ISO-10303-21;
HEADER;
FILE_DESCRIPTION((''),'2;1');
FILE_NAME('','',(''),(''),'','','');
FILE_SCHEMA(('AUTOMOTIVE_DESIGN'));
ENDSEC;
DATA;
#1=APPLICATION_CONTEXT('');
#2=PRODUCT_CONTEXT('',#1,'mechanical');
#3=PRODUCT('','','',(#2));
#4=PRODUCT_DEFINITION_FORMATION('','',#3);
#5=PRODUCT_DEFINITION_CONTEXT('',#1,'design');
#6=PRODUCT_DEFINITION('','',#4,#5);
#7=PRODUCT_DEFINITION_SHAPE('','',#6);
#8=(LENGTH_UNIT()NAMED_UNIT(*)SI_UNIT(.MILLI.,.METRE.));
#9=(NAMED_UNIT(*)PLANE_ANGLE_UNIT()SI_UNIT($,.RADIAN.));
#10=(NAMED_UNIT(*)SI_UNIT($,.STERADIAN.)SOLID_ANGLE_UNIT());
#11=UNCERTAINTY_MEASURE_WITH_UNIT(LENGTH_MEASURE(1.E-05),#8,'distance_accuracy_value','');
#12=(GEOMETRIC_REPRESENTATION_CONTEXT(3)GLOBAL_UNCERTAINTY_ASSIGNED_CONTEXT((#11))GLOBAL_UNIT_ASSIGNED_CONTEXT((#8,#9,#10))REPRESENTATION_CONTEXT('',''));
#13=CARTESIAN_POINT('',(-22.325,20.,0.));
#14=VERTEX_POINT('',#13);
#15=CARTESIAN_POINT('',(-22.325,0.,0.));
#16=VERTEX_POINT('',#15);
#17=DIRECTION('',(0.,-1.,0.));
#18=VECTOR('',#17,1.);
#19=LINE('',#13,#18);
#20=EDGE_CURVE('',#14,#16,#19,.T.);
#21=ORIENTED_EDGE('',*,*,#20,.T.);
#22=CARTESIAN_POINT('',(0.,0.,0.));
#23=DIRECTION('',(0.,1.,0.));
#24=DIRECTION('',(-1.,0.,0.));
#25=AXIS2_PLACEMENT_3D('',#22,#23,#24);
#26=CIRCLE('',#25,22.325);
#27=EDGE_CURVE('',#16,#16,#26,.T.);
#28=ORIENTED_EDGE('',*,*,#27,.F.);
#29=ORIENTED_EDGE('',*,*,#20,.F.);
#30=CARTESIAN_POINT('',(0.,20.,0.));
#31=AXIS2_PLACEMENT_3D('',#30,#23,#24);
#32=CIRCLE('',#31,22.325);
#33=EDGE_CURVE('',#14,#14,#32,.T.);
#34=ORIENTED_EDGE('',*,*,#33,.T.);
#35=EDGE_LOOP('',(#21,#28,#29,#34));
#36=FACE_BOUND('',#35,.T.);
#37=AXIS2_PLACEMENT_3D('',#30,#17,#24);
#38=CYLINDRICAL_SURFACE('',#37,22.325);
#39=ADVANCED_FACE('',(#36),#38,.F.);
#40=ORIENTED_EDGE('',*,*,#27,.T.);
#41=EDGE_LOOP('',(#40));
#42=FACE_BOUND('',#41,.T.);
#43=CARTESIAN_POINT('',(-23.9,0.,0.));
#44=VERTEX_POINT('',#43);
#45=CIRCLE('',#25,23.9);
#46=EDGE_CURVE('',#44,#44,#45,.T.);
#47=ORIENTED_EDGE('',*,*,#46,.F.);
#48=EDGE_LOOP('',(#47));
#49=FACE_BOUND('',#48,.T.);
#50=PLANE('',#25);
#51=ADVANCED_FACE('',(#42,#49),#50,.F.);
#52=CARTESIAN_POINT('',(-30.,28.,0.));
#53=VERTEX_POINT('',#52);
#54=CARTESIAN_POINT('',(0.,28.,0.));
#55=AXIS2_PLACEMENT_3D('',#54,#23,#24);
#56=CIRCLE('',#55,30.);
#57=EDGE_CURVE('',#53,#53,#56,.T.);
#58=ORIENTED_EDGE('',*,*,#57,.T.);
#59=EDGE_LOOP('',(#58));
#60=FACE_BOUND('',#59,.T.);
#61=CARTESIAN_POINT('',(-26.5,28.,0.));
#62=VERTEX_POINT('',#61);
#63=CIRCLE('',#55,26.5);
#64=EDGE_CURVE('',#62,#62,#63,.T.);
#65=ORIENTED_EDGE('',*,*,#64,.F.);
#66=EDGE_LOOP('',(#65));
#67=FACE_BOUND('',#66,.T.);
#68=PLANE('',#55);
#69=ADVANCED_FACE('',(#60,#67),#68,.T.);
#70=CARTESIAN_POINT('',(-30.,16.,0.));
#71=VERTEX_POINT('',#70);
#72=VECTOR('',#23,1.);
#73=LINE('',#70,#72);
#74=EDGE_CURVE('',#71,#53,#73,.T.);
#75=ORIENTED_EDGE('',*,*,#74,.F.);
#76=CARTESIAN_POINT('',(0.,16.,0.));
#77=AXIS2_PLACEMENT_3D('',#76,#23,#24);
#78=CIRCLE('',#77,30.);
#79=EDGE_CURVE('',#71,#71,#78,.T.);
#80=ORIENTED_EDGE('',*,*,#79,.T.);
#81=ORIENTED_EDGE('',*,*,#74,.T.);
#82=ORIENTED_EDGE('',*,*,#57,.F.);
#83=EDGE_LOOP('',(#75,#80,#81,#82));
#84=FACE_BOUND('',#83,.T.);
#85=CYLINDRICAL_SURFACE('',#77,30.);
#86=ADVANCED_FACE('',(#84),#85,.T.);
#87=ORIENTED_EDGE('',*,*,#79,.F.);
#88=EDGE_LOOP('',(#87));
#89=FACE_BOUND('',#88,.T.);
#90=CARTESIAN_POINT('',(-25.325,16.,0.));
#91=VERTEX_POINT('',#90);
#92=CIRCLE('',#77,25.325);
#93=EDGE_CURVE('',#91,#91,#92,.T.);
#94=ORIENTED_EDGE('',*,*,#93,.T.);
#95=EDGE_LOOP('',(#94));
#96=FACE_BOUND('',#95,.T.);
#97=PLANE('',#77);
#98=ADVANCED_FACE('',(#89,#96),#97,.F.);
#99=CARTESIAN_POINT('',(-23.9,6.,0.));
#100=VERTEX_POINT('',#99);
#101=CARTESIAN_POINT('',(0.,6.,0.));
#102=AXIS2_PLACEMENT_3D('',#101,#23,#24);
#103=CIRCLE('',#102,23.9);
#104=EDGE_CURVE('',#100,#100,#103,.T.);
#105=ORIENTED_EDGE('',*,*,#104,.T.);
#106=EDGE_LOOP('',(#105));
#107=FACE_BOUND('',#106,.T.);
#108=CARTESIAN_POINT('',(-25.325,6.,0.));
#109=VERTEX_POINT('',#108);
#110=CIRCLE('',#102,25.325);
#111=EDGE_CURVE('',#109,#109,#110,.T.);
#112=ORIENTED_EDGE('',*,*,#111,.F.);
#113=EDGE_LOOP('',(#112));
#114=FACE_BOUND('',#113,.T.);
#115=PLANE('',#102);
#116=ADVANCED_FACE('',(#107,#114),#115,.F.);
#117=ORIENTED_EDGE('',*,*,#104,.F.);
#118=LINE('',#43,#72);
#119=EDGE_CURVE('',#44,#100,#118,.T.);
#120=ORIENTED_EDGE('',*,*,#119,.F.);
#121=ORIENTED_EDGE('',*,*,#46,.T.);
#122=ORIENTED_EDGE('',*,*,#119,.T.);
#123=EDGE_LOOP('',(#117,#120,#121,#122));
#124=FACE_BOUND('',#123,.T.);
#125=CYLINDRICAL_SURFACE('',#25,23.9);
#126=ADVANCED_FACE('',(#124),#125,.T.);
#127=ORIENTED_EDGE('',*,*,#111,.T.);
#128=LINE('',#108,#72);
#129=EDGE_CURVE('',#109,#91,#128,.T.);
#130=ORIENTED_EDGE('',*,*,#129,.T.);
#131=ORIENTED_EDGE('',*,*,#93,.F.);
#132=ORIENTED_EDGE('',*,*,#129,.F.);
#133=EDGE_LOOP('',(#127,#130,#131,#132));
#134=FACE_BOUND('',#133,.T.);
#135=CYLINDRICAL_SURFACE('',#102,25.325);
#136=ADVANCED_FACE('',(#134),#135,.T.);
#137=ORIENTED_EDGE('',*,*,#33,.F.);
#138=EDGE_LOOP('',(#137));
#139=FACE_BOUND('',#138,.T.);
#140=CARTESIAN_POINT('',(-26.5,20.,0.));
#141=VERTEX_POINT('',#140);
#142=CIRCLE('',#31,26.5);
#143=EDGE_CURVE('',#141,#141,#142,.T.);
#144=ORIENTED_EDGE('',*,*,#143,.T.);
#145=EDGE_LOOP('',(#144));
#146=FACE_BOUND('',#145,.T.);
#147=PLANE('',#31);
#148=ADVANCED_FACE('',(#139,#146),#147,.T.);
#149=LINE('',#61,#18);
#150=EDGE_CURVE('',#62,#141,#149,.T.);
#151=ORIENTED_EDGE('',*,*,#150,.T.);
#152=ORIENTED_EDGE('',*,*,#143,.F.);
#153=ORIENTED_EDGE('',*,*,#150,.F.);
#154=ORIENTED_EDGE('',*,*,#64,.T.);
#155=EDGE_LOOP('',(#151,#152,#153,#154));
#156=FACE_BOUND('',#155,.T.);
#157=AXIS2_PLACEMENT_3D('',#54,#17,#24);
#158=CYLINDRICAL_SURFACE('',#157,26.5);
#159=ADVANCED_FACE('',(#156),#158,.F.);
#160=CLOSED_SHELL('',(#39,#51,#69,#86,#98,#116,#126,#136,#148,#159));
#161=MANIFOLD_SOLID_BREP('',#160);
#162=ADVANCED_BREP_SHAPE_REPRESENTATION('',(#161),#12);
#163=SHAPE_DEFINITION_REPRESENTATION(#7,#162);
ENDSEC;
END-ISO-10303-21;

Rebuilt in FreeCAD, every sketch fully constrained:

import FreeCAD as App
import Part
import Sketcher
from FreeCAD import Vector

doc = App.newDocument("Part")
body = doc.addObject("PartDesign::Body", "Body")

# Sketch on XY plane
sketch1 = body.newObject("Sketcher::SketchObject", "Sketch")
sketch1.AttachmentSupport = (doc.getObject("XY_Plane"), [""])
sketch1.MapMode = "FlatFace"
sketch1.addGeometry(Part.LineSegment(Vector(-22.3, 0, 0), Vector(-22.3, 20, 0)), False)
sketch1.addGeometry(Part.LineSegment(Vector(-22.3, 20, 0), Vector(-26.5, 20, 0)), False)
sketch1.addGeometry(Part.LineSegment(Vector(-26.5, 20, 0), Vector(-26.5, 28, 0)), False)
sketch1.addGeometry(Part.LineSegment(Vector(-26.5, 28, 0), Vector(-30, 28, 0)), False)
sketch1.addGeometry(Part.LineSegment(Vector(-30, 28, 0), Vector(-30, 16, 0)), False)
sketch1.addGeometry(Part.LineSegment(Vector(-30, 16, 0), Vector(-25.3, 16, 0)), False)
sketch1.addGeometry(Part.LineSegment(Vector(-25.3, 16, 0), Vector(-25.3, 6, 0)), False)
sketch1.addGeometry(Part.LineSegment(Vector(-25.3, 6, 0), Vector(-23.9, 6, 0)), False)
sketch1.addGeometry(Part.LineSegment(Vector(-23.9, 6, 0), Vector(-23.9, 0, 0)), False)
sketch1.addGeometry(Part.LineSegment(Vector(-23.9, 0, 0), Vector(-22.3, 0, 0)), False)
sketch1.addConstraint(Sketcher.Constraint("Coincident", 0, 2, 1, 1))
sketch1.addConstraint(Sketcher.Constraint("Coincident", 1, 2, 2, 1))
sketch1.addConstraint(Sketcher.Constraint("Coincident", 2, 2, 3, 1))
sketch1.addConstraint(Sketcher.Constraint("Coincident", 3, 2, 4, 1))
sketch1.addConstraint(Sketcher.Constraint("Coincident", 4, 2, 5, 1))
sketch1.addConstraint(Sketcher.Constraint("Coincident", 5, 2, 6, 1))
sketch1.addConstraint(Sketcher.Constraint("Coincident", 6, 2, 7, 1))
sketch1.addConstraint(Sketcher.Constraint("Coincident", 7, 2, 8, 1))
sketch1.addConstraint(Sketcher.Constraint("Coincident", 8, 2, 9, 1))
sketch1.addConstraint(Sketcher.Constraint("Coincident", 9, 2, 0, 1))
sketch1.addConstraint(Sketcher.Constraint("Vertical", 0))
sketch1.addConstraint(Sketcher.Constraint("Horizontal", 1))
sketch1.addConstraint(Sketcher.Constraint("Vertical", 2))
sketch1.addConstraint(Sketcher.Constraint("Horizontal", 3))
sketch1.addConstraint(Sketcher.Constraint("Vertical", 4))
sketch1.addConstraint(Sketcher.Constraint("Horizontal", 5))
sketch1.addConstraint(Sketcher.Constraint("Vertical", 6))
sketch1.addConstraint(Sketcher.Constraint("Horizontal", 7))
sketch1.addConstraint(Sketcher.Constraint("Vertical", 8))
sketch1.addConstraint(Sketcher.Constraint("Horizontal", 9))
sketch1.addConstraint(Sketcher.Constraint("PointOnObject", 8, 2, -1))
sketch1.addConstraint(Sketcher.Constraint("DistanceY", 2, 1, 2, 2, 8.0))
sketch1.addConstraint(Sketcher.Constraint("DistanceY", 4, 2, 4, 1, 12.0))
sketch1.addConstraint(Sketcher.Constraint("DistanceY", 6, 2, 6, 1, 10.0))
sketch1.addConstraint(Sketcher.Constraint("DistanceY", 8, 2, 8, 1, 6.0))
sketch1.addConstraint(Sketcher.Constraint("DistanceX", 3, 2, -1, 1, 30.0))
sketch1.addConstraint(Sketcher.Constraint("DistanceX", 5, 2, 0, 2, 3.0))
sketch1.addConstraint(Sketcher.Constraint("DistanceX", 1, 2, -1, 1, 26.5))
sketch1.addConstraint(Sketcher.Constraint("DistanceX", 7, 2, -1, 1, 23.9))
sketch1.addConstraint(Sketcher.Constraint("DistanceX", 0, 2, -1, 1, 22.325))
revolution = body.newObject("PartDesign::Revolution", "Revolution")
revolution.Profile = sketch1
revolution.ReferenceAxis = (sketch1, ["V_Axis"])
revolution.Angle = 360

doc.recompute()
